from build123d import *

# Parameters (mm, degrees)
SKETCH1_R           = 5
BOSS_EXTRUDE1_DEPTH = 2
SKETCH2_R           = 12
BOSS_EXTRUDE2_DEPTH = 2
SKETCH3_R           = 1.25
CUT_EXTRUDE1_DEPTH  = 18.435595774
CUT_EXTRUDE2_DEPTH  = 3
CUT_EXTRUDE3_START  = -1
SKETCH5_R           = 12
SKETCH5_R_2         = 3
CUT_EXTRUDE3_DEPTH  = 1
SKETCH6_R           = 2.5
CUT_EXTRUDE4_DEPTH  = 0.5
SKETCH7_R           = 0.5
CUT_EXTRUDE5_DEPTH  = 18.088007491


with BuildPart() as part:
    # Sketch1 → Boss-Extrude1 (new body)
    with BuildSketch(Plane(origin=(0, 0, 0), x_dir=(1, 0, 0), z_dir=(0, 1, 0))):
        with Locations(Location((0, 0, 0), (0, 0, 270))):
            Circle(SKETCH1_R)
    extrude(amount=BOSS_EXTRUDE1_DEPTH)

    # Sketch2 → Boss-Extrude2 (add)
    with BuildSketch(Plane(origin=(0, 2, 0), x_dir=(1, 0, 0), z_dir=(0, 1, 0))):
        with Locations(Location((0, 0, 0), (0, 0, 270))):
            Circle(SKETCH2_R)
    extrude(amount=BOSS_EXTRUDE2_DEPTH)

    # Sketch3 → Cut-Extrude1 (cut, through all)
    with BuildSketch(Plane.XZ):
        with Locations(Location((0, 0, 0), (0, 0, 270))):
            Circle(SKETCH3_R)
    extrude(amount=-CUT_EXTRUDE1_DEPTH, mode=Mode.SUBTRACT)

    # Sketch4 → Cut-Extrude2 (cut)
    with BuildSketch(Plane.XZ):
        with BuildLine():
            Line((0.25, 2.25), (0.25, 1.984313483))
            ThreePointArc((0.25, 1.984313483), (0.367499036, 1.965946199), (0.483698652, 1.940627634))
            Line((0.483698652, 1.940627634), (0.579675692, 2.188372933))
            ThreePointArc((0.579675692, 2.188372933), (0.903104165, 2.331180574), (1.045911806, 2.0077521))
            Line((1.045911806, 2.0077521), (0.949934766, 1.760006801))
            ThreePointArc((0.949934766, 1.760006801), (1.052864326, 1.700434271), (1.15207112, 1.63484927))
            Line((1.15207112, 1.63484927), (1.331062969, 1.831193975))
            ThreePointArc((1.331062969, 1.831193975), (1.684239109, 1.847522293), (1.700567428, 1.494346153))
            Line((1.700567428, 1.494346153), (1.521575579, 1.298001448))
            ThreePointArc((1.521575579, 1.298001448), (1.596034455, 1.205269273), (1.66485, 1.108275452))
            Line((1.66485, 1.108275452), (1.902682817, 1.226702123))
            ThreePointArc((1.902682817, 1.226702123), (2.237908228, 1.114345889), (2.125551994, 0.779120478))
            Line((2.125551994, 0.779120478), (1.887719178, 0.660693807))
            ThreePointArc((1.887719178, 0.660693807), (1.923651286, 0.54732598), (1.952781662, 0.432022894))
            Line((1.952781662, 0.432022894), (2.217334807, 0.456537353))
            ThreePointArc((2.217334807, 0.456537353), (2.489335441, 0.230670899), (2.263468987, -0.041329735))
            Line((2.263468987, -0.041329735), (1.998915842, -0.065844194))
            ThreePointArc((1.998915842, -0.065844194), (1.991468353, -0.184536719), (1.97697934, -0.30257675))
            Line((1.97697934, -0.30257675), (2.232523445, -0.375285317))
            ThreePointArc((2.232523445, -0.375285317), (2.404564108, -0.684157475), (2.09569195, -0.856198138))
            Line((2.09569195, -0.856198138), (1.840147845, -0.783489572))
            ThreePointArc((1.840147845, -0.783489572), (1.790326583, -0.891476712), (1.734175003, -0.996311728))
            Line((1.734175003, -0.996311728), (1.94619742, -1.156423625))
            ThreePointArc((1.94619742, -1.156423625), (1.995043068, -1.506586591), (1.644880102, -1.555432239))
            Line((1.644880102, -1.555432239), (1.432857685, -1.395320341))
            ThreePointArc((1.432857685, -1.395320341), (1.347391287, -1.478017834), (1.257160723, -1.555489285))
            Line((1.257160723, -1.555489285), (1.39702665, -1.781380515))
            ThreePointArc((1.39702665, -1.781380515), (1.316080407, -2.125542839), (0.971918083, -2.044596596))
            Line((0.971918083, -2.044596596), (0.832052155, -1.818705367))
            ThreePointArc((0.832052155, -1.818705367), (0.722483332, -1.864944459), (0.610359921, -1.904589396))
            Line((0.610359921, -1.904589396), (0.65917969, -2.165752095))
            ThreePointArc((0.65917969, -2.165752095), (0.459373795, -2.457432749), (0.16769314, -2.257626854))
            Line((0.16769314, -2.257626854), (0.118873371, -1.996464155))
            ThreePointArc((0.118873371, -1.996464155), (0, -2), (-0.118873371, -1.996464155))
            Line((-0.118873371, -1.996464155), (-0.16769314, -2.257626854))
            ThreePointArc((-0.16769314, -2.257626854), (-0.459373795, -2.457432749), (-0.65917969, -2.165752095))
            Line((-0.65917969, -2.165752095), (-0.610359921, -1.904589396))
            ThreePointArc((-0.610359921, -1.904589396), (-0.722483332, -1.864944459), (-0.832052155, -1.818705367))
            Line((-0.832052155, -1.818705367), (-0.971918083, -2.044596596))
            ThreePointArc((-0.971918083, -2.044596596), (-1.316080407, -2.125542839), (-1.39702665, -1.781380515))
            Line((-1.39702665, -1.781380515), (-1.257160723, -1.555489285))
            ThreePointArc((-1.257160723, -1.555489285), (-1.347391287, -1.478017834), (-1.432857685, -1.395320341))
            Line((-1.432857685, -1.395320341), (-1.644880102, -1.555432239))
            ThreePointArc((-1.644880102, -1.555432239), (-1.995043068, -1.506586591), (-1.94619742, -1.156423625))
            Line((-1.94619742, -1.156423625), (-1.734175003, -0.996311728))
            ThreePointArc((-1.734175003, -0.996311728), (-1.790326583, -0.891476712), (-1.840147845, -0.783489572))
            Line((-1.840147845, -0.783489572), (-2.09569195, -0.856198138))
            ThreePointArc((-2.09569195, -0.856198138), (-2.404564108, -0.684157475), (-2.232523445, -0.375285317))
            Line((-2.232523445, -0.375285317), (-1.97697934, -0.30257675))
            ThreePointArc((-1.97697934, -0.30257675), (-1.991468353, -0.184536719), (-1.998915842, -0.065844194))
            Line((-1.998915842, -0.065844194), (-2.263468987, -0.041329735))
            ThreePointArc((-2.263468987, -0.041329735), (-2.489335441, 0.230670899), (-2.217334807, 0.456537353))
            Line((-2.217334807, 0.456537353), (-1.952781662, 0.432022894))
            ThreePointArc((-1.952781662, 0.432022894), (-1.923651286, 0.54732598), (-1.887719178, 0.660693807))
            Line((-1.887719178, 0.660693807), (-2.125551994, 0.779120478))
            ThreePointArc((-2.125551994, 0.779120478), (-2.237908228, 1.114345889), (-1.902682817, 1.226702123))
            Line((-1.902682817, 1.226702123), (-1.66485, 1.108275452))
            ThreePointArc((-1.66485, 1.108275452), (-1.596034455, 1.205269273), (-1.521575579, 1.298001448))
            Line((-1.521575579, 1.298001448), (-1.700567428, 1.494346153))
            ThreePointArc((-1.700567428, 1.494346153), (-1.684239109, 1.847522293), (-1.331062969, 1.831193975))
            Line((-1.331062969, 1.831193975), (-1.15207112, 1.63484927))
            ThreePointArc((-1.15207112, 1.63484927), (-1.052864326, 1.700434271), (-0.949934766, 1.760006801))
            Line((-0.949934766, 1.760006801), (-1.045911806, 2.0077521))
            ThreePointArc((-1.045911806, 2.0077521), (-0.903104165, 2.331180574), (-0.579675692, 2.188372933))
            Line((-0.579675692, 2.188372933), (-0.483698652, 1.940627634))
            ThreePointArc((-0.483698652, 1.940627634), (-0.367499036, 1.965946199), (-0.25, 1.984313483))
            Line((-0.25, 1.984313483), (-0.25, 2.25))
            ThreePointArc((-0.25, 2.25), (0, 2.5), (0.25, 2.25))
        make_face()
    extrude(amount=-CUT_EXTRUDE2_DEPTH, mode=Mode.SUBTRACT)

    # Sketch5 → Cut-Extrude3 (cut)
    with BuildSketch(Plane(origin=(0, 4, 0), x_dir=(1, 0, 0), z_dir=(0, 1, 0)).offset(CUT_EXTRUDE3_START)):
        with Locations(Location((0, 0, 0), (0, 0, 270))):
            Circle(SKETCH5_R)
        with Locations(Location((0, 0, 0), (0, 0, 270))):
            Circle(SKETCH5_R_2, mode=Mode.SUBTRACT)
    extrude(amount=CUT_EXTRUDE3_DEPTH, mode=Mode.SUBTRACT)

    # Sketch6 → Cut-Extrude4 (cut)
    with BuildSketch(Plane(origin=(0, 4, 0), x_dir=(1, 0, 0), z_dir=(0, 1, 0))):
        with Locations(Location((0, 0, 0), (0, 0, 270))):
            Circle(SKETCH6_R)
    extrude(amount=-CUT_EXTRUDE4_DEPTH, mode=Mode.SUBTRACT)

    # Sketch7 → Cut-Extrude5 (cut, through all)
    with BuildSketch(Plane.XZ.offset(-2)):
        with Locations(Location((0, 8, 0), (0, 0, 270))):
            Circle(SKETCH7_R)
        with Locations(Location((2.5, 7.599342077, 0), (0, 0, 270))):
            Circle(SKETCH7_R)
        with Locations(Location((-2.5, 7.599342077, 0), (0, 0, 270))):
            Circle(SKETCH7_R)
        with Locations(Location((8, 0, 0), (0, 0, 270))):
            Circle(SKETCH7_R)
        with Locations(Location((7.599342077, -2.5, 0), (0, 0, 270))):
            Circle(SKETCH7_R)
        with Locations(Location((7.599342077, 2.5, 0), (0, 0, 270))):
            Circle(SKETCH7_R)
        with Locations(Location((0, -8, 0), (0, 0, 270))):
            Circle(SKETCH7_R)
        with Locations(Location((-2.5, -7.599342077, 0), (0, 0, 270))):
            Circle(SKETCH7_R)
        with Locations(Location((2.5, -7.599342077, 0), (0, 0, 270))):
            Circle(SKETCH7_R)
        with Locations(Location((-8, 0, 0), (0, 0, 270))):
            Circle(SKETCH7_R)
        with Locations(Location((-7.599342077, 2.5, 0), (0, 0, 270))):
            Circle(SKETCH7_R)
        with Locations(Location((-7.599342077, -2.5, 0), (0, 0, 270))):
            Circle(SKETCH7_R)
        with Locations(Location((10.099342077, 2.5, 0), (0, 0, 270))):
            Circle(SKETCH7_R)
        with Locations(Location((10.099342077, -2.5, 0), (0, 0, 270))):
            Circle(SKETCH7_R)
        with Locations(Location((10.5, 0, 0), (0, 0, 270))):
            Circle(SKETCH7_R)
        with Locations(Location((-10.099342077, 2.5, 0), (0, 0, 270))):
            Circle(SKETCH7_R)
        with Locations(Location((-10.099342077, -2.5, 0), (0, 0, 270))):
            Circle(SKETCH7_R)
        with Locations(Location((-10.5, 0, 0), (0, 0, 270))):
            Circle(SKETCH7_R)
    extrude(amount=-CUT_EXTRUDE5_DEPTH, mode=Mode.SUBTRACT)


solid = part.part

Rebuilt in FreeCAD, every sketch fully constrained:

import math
import FreeCAD as App
import Part
import Sketcher
Q = App.Units.Quantity

doc = App.newDocument("Part")
body = doc.addObject("PartDesign::Body", "Body")

sketch1 = doc.addObject("Sketcher::SketchObject", "Sketch")
body.addObject(sketch1)
sketch1.AttachmentSupport = (doc.XZ_Plane, [""])
sketch1.MapMode = "FlatFace"
sketch1.addGeometry(Part.Circle(App.Vector(0, 0, 0), App.Vector(0, 0, 1), 5), False)
sketch1.addConstraint(Sketcher.Constraint("Coincident", 0, 3, -1, 1))
sketch1.addConstraint(Sketcher.Constraint("Diameter", 0, Q("10 mm")))
pad1 = doc.addObject("PartDesign::Pad", "Pad")
body.addObject(pad1)
pad1.Profile = sketch1
pad1.Length = 2
pad1.Reversed = True

sketch2 = doc.addObject("Sketcher::SketchObject", "Sketch001")
body.addObject(sketch2)
sketch2.AttachmentSupport = (doc.XZ_Plane, [""])
sketch2.MapMode = "FlatFace"
sketch2.AttachmentOffset = App.Placement(App.Vector(0, 0, -2), App.Rotation())
sketch2.addGeometry(Part.Circle(App.Vector(0, 0, 0), App.Vector(0, 0, 1), 12), False)
sketch2.addConstraint(Sketcher.Constraint("Coincident", 0, 3, -1, 1))
sketch2.addConstraint(Sketcher.Constraint("Diameter", 0, Q("24 mm")))
pad2 = doc.addObject("PartDesign::Pad", "Pad001")
body.addObject(pad2)
pad2.Profile = sketch2
pad2.Length = 2
pad2.Reversed = True

sketch3 = doc.addObject("Sketcher::SketchObject", "Sketch002")
body.addObject(sketch3)
sketch3.AttachmentSupport = (doc.XZ_Plane, [""])
sketch3.MapMode = "FlatFace"
sketch3.addGeometry(Part.Circle(App.Vector(0, 0, 0), App.Vector(0, 0, 1), 1.2), False)
sketch3.addConstraint(Sketcher.Constraint("Coincident", 0, 3, -1, 1))
sketch3.addConstraint(Sketcher.Constraint("Diameter", 0, Q("2.5 mm")))
pocket1 = doc.addObject("PartDesign::Pocket", "Pocket")
body.addObject(pocket1)
pocket1.Profile = sketch3
pocket1.Type = "ThroughAll"

sketch4 = doc.addObject("Sketcher::SketchObject", "Sketch003")
body.addObject(sketch4)
sketch4.AttachmentSupport = (doc.XZ_Plane, [""])
sketch4.MapMode = "FlatFace"
sketch4.addGeometry(Part.LineSegment(App.Vector(0.25, 1.98, 0), App.Vector(0.25, 2.25, 0)), False)
sketch4.addGeometry(Part.ArcOfCircle(Part.Circle(App.Vector(0, 2.25, 0), App.Vector(0, 0, 1), 0.25), math.radians(0), math.radians(180)), False)
sketch4.addGeometry(Part.LineSegment(App.Vector(-0.25, 2.25, 0), App.Vector(-0.25, 1.98, 0)), False)
sketch4.addGeometry(Part.ArcOfCircle(Part.Circle(App.Vector(0, 0, 0), App.Vector(0, 0, 1), 2), math.radians(97.18), math.radians(104)), False)
sketch4.addGeometry(Part.LineSegment(App.Vector(-0.48, 1.94, 0), App.Vector(-0.58, 2.19, 0)), False)
sketch4.addGeometry(Part.ArcOfCircle(Part.Circle(App.Vector(-0.81, 2.1, 0), App.Vector(0, 0, 1), 0.25), math.radians(21), math.radians(201)), False)
sketch4.addGeometry(Part.LineSegment(App.Vector(-1.05, 2.01, 0), App.Vector(-0.95, 1.76, 0)), False)
sketch4.addGeometry(Part.ArcOfCircle(Part.Circle(App.Vector(0, 0, 0), App.Vector(0, 0, 1), 2), math.radians(118.36), math.radians(125.17)), False)
sketch4.addGeometry(Part.LineSegment(App.Vector(-1.15, 1.63, 0), App.Vector(-1.33, 1.83, 0)), False)
sketch4.addGeometry(Part.ArcOfCircle(Part.Circle(App.Vector(-1.52, 1.66, 0), App.Vector(0, 0, 1), 0.25), math.radians(42), math.radians(222)), False)
sketch4.addGeometry(Part.LineSegment(App.Vector(-1.7, 1.49, 0), App.Vector(-1.52, 1.3, 0)), False)
sketch4.addGeometry(Part.ArcOfCircle(Part.Circle(App.Vector(0, 0, 0), App.Vector(0, 0, 1), 2), math.radians(139.53), math.radians(146.35)), False)
sketch4.addGeometry(Part.LineSegment(App.Vector(-1.66, 1.11, 0), App.Vector(-1.9, 1.23, 0)), False)
sketch4.addGeometry(Part.ArcOfCircle(Part.Circle(App.Vector(-2.01, 1, 0), App.Vector(0, 0, 1), 0.25), math.radians(64), math.radians(244)), False)
sketch4.addGeometry(Part.LineSegment(App.Vector(-2.13, 0.78, 0), App.Vector(-1.89, 0.66, 0)), False)
sketch4.addGeometry(Part.ArcOfCircle(Part.Circle(App.Vector(0, 0, 0), App.Vector(0, 0, 1), 2), math.radians(160.71), math.radians(167.53)), False)
sketch4.addGeometry(Part.LineSegment(App.Vector(-1.95, 0.43, 0), App.Vector(-2.22, 0.46, 0)), False)
sketch4.addGeometry(Part.ArcOfCircle(Part.Circle(App.Vector(-2.24, 0.21, 0), App.Vector(0, 0, 1), 0.25), math.radians(85), math.radians(265)), False)
sketch4.addGeometry(Part.LineSegment(App.Vector(-2.26, -0.04, 0), App.Vector(-2, -0.07, 0)), False)
sketch4.addGeometry(Part.ArcOfCircle(Part.Circle(App.Vector(0, 0, 0), App.Vector(0, 0, 1), 2), math.radians(-178.11), math.radians(-171.3)), False)
sketch4.addGeometry(Part.LineSegment(App.Vector(-1.98, -0.3, 0), App.Vector(-2.23, -0.38, 0)), False)
sketch4.addGeometry(Part.ArcOfCircle(Part.Circle(App.Vector(-2.16, -0.62, 0), App.Vector(0, 0, 1), 0.25), math.radians(106), math.radians(286)), False)
sketch4.addGeometry(Part.LineSegment(App.Vector(-2.1, -0.86, 0), App.Vector(-1.84, -0.78, 0)), False)
sketch4.addGeometry(Part.ArcOfCircle(Part.Circle(App.Vector(0, 0, 0), App.Vector(0, 0, 1), 2), math.radians(-156.94), math.radians(-150.12)), False)
sketch4.addGeometry(Part.LineSegment(App.Vector(-1.73, -1, 0), App.Vector(-1.95, -1.16, 0)), False)
sketch4.addGeometry(Part.ArcOfCircle(Part.Circle(App.Vector(-1.8, -1.36, 0), App.Vector(0, 0, 1), 0.25), math.radians(127), math.radians(307)), False)
sketch4.addGeometry(Part.LineSegment(App.Vector(-1.64, -1.56, 0), App.Vector(-1.43, -1.4, 0)), False)
sketch4.addGeometry(Part.ArcOfCircle(Part.Circle(App.Vector(0, 0, 0), App.Vector(0, 0, 1), 2), math.radians(-135.76), math.radians(-128.95)), False)
sketch4.addGeometry(Part.LineSegment(App.Vector(-1.26, -1.56, 0), App.Vector(-1.4, -1.78, 0)), False)
sketch4.addGeometry(Part.ArcOfCircle(Part.Circle(App.Vector(-1.18, -1.91, 0), App.Vector(0, 0, 1), 0.25), math.radians(148), math.radians(328)), False)
sketch4.addGeometry(Part.LineSegment(App.Vector(-0.97, -2.04, 0), App.Vector(-0.83, -1.82, 0)), False)
sketch4.addGeometry(Part.ArcOfCircle(Part.Circle(App.Vector(0, 0, 0), App.Vector(0, 0, 1), 2), math.radians(-114.58), math.radians(-107.77)), False)
sketch4.addGeometry(Part.LineSegment(App.Vector(-0.61, -1.9, 0), App.Vector(-0.66, -2.17, 0)), False)
sketch4.addGeometry(Part.ArcOfCircle(Part.Circle(App.Vector(-0.41, -2.21, 0), App.Vector(0, 0, 1), 0.25), math.radians(169), math.radians(349)), False)
sketch4.addGeometry(Part.LineSegment(App.Vector(-0.17, -2.26, 0), App.Vector(-0.12, -2, 0)), False)
sketch4.addGeometry(Part.ArcOfCircle(Part.Circle(App.Vector(0, 0, 0), App.Vector(0, 0, 1), 2), math.radians(-93.41), math.radians(-86.59)), False)
sketch4.addGeometry(Part.LineSegment(App.Vector(0.12, -2, 0), App.Vector(0.17, -2.26, 0)), False)
sketch4.addGeometry(Part.ArcOfCircle(Part.Circle(App.Vector(0.41, -2.21, 0), App.Vector(0, 0, 1), 0.25), math.radians(-169), math.radians(11)), False)
sketch4.addGeometry(Part.LineSegment(App.Vector(0.66, -2.17, 0), App.Vector(0.61, -1.9, 0)), False)
sketch4.addGeometry(Part.ArcOfCircle(Part.Circle(App.Vector(0, 0, 0), App.Vector(0, 0, 1), 2), math.radians(-72.23), math.radians(-65.42)), False)
sketch4.addGeometry(Part.LineSegment(App.Vector(0.83, -1.82, 0), App.Vector(0.97, -2.04, 0)), False)
sketch4.addGeometry(Part.ArcOfCircle(Part.Circle(App.Vector(1.18, -1.91, 0), App.Vector(0, 0, 1), 0.25), math.radians(-148), math.radians(32)), False)
sketch4.addGeometry(Part.LineSegment(App.Vector(1.4, -1.78, 0), App.Vector(1.26, -1.56, 0)), False)
sketch4.addGeometry(Part.ArcOfCircle(Part.Circle(App.Vector(0, 0, 0), App.Vector(0, 0, 1), 2), math.radians(-51.05), math.radians(-44.24)), False)
sketch4.addGeometry(Part.LineSegment(App.Vector(1.43, -1.4, 0), App.Vector(1.64, -1.56, 0)), False)
sketch4.addGeometry(Part.ArcOfCircle(Part.Circle(App.Vector(1.8, -1.36, 0), App.Vector(0, 0, 1), 0.25), math.radians(-127), math.radians(53)), False)
sketch4.addGeometry(Part.LineSegment(App.Vector(1.95, -1.16, 0), App.Vector(1.73, -1, 0)), False)
sketch4.addGeometry(Part.ArcOfCircle(Part.Circle(App.Vector(0, 0, 0), App.Vector(0, 0, 1), 2), math.radians(-29.88), math.radians(-23.06)), False)
sketch4.addGeometry(Part.LineSegment(App.Vector(1.84, -0.78, 0), App.Vector(2.1, -0.86, 0)), False)
sketch4.addGeometry(Part.ArcOfCircle(Part.Circle(App.Vector(2.16, -0.62, 0), App.Vector(0, 0, 1), 0.25), math.radians(-106), math.radians(74)), False)
sketch4.addGeometry(Part.LineSegment(App.Vector(2.23, -0.38, 0), App.Vector(1.98, -0.3, 0)), False)
sketch4.addGeometry(Part.ArcOfCircle(Part.Circle(App.Vector(0, 0, 0), App.Vector(0, 0, 1), 2), math.radians(-8.7), math.radians(-1.89)), False)
sketch4.addGeometry(Part.LineSegment(App.Vector(2, -0.07, 0), App.Vector(2.26, -0.04, 0)), False)
sketch4.addGeometry(Part.ArcOfCircle(Part.Circle(App.Vector(2.24, 0.21, 0), App.Vector(0, 0, 1), 0.25), math.radians(-85), math.radians(95)), False)
sketch4.addGeometry(Part.LineSegment(App.Vector(2.22, 0.46, 0), App.Vector(1.95, 0.43, 0)), False)
sketch4.addGeometry(Part.ArcOfCircle(Part.Circle(App.Vector(0, 0, 0), App.Vector(0, 0, 1), 2), math.radians(12.47), math.radians(19.29)), False)
sketch4.addGeometry(Part.LineSegment(App.Vector(1.89, 0.66, 0), App.Vector(2.13, 0.78, 0)), False)
sketch4.addGeometry(Part.ArcOfCircle(Part.Circle(App.Vector(2.01, 1, 0), App.Vector(0, 0, 1), 0.25), math.radians(-64), math.radians(116)), False)
sketch4.addGeometry(Part.LineSegment(App.Vector(1.9, 1.23, 0), App.Vector(1.66, 1.11, 0)), False)
sketch4.addGeometry(Part.ArcOfCircle(Part.Circle(App.Vector(0, 0, 0), App.Vector(0, 0, 1), 2), math.radians(33.65), math.radians(40.47)), False)
sketch4.addGeometry(Part.LineSegment(App.Vector(1.52, 1.3, 0), App.Vector(1.7, 1.49, 0)), False)
sketch4.addGeometry(Part.ArcOfCircle(Part.Circle(App.Vector(1.52, 1.66, 0), App.Vector(0, 0, 1), 0.25), math.radians(-42), math.radians(138)), False)
sketch4.addGeometry(Part.LineSegment(App.Vector(1.33, 1.83, 0), App.Vector(1.15, 1.63, 0)), False)
sketch4.addGeometry(Part.ArcOfCircle(Part.Circle(App.Vector(0, 0, 0), App.Vector(0, 0, 1), 2), math.radians(54.83), math.radians(61.64)), False)
sketch4.addGeometry(Part.LineSegment(App.Vector(0.95, 1.76, 0), App.Vector(1.05, 2.01, 0)), False)
sketch4.addGeometry(Part.ArcOfCircle(Part.Circle(App.Vector(0.81, 2.1, 0), App.Vector(0, 0, 1), 0.25), math.radians(-21), math.radians(159)), False)
sketch4.addGeometry(Part.LineSegment(App.Vector(0.58, 2.19, 0), App.Vector(0.48, 1.94, 0)), False)
sketch4.addGeometry(Part.ArcOfCircle(Part.Circle(App.Vector(0, 0, 0), App.Vector(0, 0, 1), 2), math.radians(76), math.radians(82.82)), False)
sketch4.addConstraint(Sketcher.Constraint("Tangent", 0, 2, 1, 1))
sketch4.addConstraint(Sketcher.Constraint("Tangent", 1, 2, 2, 1))
sketch4.addConstraint(Sketcher.Constraint("Coincident", 2, 2, 3, 1))
sketch4.addConstraint(Sketcher.Constraint("Coincident", 3, 2, 4, 1))
sketch4.addConstraint(Sketcher.Constraint("Tangent", 4, 2, 5, 1))
sketch4.addConstraint(Sketcher.Constraint("Tangent", 5, 2, 6, 1))
sketch4.addConstraint(Sketcher.Constraint("Coincident", 6, 2, 7, 1))
sketch4.addConstraint(Sketcher.Constraint("Coincident", 7, 2, 8, 1))
sketch4.addConstraint(Sketcher.Constraint("Tangent", 8, 2, 9, 1))
sketch4.addConstraint(Sketcher.Constraint("Tangent", 9, 2, 10, 1))
sketch4.addConstraint(Sketcher.Constraint("Coincident", 10, 2, 11, 1))
sketch4.addConstraint(Sketcher.Constraint("Coincident", 11, 2, 12, 1))
sketch4.addConstraint(Sketcher.Constraint("Tangent", 12, 2, 13, 1))
sketch4.addConstraint(Sketcher.Constraint("Tangent", 13, 2, 14, 1))
sketch4.addConstraint(Sketcher.Constraint("Coincident", 14, 2, 15, 1))
sketch4.addConstraint(Sketcher.Constraint("Coincident", 15, 2, 16, 1))
sketch4.addConstraint(Sketcher.Constraint("Tangent", 16, 2, 17, 1))
sketch4.addConstraint(Sketcher.Constraint("Tangent", 17, 2, 18, 1))
sketch4.addConstraint(Sketcher.Constraint("Coincident", 18, 2, 19, 1))
sketch4.addConstraint(Sketcher.Constraint("Coincident", 19, 2, 20, 1))
sketch4.addConstraint(Sketcher.Constraint("Tangent", 20, 2, 21, 1))
sketch4.addConstraint(Sketcher.Constraint("Tangent", 21, 2, 22, 1))
sketch4.addConstraint(Sketcher.Constraint("Coincident", 22, 2, 23, 1))
sketch4.addConstraint(Sketcher.Constraint("Coincident", 23, 2, 24, 1))
sketch4.addConstraint(Sketcher.Constraint("Tangent", 24, 2, 25, 1))
sketch4.addConstraint(Sketcher.Constraint("Tangent", 25, 2, 26, 1))
sketch4.addConstraint(Sketcher.Constraint("Coincident", 26, 2, 27, 1))
sketch4.addConstraint(Sketcher.Constraint("Coincident", 27, 2, 28, 1))
sketch4.addConstraint(Sketcher.Constraint("Tangent", 28, 2, 29, 1))
sketch4.addConstraint(Sketcher.Constraint("Tangent", 29, 2, 30, 1))
sketch4.addConstraint(Sketcher.Constraint("Coincident", 30, 2, 31, 1))
sketch4.addConstraint(Sketcher.Constraint("Coincident", 31, 2, 32, 1))
sketch4.addConstraint(Sketcher.Constraint("Tangent", 32, 2, 33, 1))
sketch4.addConstraint(Sketcher.Constraint("Tangent", 33, 2, 34, 1))
sketch4.addConstraint(Sketcher.Constraint("Coincident", 34, 2, 35, 1))
sketch4.addConstraint(Sketcher.Constraint("Coincident", 35, 2, 36, 1))
sketch4.addConstraint(Sketcher.Constraint("Tangent", 36, 2, 37, 1))
sketch4.addConstraint(Sketcher.Constraint("Tangent", 37, 2, 38, 1))
sketch4.addConstraint(Sketcher.Constraint("Coincident", 38, 2, 39, 1))
sketch4.addConstraint(Sketcher.Constraint("Coincident", 39, 2, 40, 1))
sketch4.addConstraint(Sketcher.Constraint("Tangent", 40, 2, 41, 1))
sketch4.addConstraint(Sketcher.Constraint("Tangent", 41, 2, 42, 1))
sketch4.addConstraint(Sketcher.Constraint("Coincident", 42, 2, 43, 1))
sketch4.addConstraint(Sketcher.Constraint("Coincident", 43, 2, 44, 1))
sketch4.addConstraint(Sketcher.Constraint("Tangent", 44, 2, 45, 1))
sketch4.addConstraint(Sketcher.Constraint("Tangent", 45, 2, 46, 1))
sketch4.addConstraint(Sketcher.Constraint("Coincident", 46, 2, 47, 1))
sketch4.addConstraint(Sketcher.Constraint("Coincident", 47, 2, 48, 1))
sketch4.addConstraint(Sketcher.Constraint("Tangent", 48, 2, 49, 1))
sketch4.addConstraint(Sketcher.Constraint("Tangent", 49, 2, 50, 1))
sketch4.addConstraint(Sketcher.Constraint("Coincident", 50, 2, 51, 1))
sketch4.addConstraint(Sketcher.Constraint("Coincident", 51, 2, 52, 1))
sketch4.addConstraint(Sketcher.Constraint("Tangent", 52, 2, 53, 1))
sketch4.addConstraint(Sketcher.Constraint("Tangent", 53, 2, 54, 1))
sketch4.addConstraint(Sketcher.Constraint("Coincident", 54, 2, 55, 1))
sketch4.addConstraint(Sketcher.Constraint("Coincident", 55, 2, 56, 1))
sketch4.addConstraint(Sketcher.Constraint("Tangent", 56, 2, 57, 1))
sketch4.addConstraint(Sketcher.Constraint("Tangent", 57, 2, 58, 1))
sketch4.addConstraint(Sketcher.Constraint("Coincident", 58, 2, 59, 1))
sketch4.addConstraint(Sketcher.Constraint("Coincident", 59, 2, 60, 1))
sketch4.addConstraint(Sketcher.Constraint("Tangent", 60, 2, 61, 1))
sketch4.addConstraint(Sketcher.Constraint("Tangent", 61, 2, 62, 1))
sketch4.addConstraint(Sketcher.Constraint("Coincident", 62, 2, 63, 1))
sketch4.addConstraint(Sketcher.Constraint("Coincident", 63, 2, 64, 1))
sketch4.addConstraint(Sketcher.Constraint("Tangent", 64, 2, 65, 1))
sketch4.addConstraint(Sketcher.Constraint("Tangent", 65, 2, 66, 1))
sketch4.addConstraint(Sketcher.Constraint("Coincident", 66, 2, 67, 1))
sketch4.addConstraint(Sketcher.Constraint("Coincident", 67, 2, 0, 1))
sketch4.addConstraint(Sketcher.Constraint("Vertical", 0))
sketch4.addConstraint(Sketcher.Constraint("Vertical", 2))
sketch4.addConstraint(Sketcher.Constraint("Coincident", 3, 3, -1, 1))
sketch4.addConstraint(Sketcher.Constraint("Coincident", 7, 3, -1, 1))
sketch4.addConstraint(Sketcher.Constraint("Coincident", 11, 3, -1, 1))
sketch4.addConstraint(Sketcher.Constraint("Coincident", 15, 3, -1, 1))
sketch4.addConstraint(Sketcher.Constraint("Coincident", 19, 3, -1, 1))
sketch4.addConstraint(Sketcher.Constraint("Coincident", 23, 3, -1, 1))
sketch4.addConstraint(Sketcher.Constraint("Coincident", 27, 3, -1, 1))
sketch4.addConstraint(Sketcher.Constraint("Coincident", 31, 3, -1, 1))
sketch4.addConstraint(Sketcher.Constraint("Coincident", 35, 3, -1, 1))
sketch4.addConstraint(Sketcher.Constraint("Coincident", 39, 3, -1, 1))
sketch4.addConstraint(Sketcher.Constraint("Coincident", 43, 3, -1, 1))
sketch4.addConstraint(Sketcher.Constraint("Coincident", 47, 3, -1, 1))
sketch4.addConstraint(Sketcher.Constraint("Coincident", 51, 3, -1, 1))
sketch4.addConstraint(Sketcher.Constraint("Coincident", 55, 3, -1, 1))
sketch4.addConstraint(Sketcher.Constraint("Coincident", 59, 3, -1, 1))
sketch4.addConstraint(Sketcher.Constraint("Coincident", 63, 3, -1, 1))
sketch4.addConstraint(Sketcher.Constraint("Coincident", 67, 3, -1, 1))
sketch4.addConstraint(Sketcher.Constraint("Equal", 1, 5))
sketch4.addConstraint(Sketcher.Constraint("Equal", 3, 7))
sketch4.addConstraint(Sketcher.Constraint("Equal", 5, 9))
sketch4.addConstraint(Sketcher.Constraint("Equal", 7, 11))
sketch4.addConstraint(Sketcher.Constraint("Equal", 9, 13))
sketch4.addConstraint(Sketcher.Constraint("Equal", 11, 15))
sketch4.addConstraint(Sketcher.Constraint("Equal", 13, 17))
sketch4.addConstraint(Sketcher.Constraint("Equal", 15, 19))
sketch4.addConstraint(Sketcher.Constraint("Equal", 17, 21))
sketch4.addConstraint(Sketcher.Constraint("Equal", 19, 23))
sketch4.addConstraint(Sketcher.Constraint("Equal", 21, 25))
sketch4.addConstraint(Sketcher.Constraint("Equal", 23, 27))
sketch4.addConstraint(Sketcher.Constraint("Equal", 25, 29))
sketch4.addConstraint(Sketcher.Constraint("Equal", 27, 31))
sketch4.addConstraint(Sketcher.Constraint("Equal", 29, 33))
sketch4.addConstraint(Sketcher.Constraint("Equal", 31, 35))
sketch4.addConstraint(Sketcher.Constraint("Equal", 33, 37))
sketch4.addConstraint(Sketcher.Constraint("Equal", 35, 39))
sketch4.addConstraint(Sketcher.Constraint("Equal", 37, 41))
sketch4.addConstraint(Sketcher.Constraint("Equal", 39, 43))
sketch4.addConstraint(Sketcher.Constraint("Equal", 41, 45))
sketch4.addConstraint(Sketcher.Constraint("Equal", 43, 47))
sketch4.addConstraint(Sketcher.Constraint("Equal", 45, 49))
sketch4.addConstraint(Sketcher.Constraint("Equal", 47, 51))
sketch4.addConstraint(Sketcher.Constraint("Equal", 49, 53))
sketch4.addConstraint(Sketcher.Constraint("Equal", 51, 55))
sketch4.addConstraint(Sketcher.Constraint("Equal", 53, 57))
sketch4.addConstraint(Sketcher.Constraint("Equal", 55, 59))
sketch4.addConstraint(Sketcher.Constraint("Equal", 57, 61))
sketch4.addConstraint(Sketcher.Constraint("Equal", 59, 63))
sketch4.addConstraint(Sketcher.Constraint("Equal", 61, 65))
sketch4.addConstraint(Sketcher.Constraint("Equal", 63, 67))
sketch4.addConstraint(Sketcher.Constraint("Symmetric", 33, 3, 37, 3, -2))
sketch4.addConstraint(Sketcher.Constraint("Symmetric", 29, 3, 41, 3, -2))
sketch4.addConstraint(Sketcher.Constraint("Symmetric", 25, 3, 45, 3, -2))
sketch4.addConstraint(Sketcher.Constraint("Symmetric", 21, 3, 49, 3, -2))
sketch4.addConstraint(Sketcher.Constraint("Symmetric", 17, 3, 53, 3, -2))
sketch4.addConstraint(Sketcher.Constraint("Symmetric", 13, 3, 57, 3, -2))
sketch4.addConstraint(Sketcher.Constraint("Symmetric", 9, 3, 61, 3, -2))
sketch4.addConstraint(Sketcher.Constraint("Symmetric", 5, 3, 65, 3, -2))
sketch4.addConstraint(Sketcher.Constraint("PointOnObject", 1, 3, -2))
sketch4.addConstraint(Sketcher.Constraint("Parallel", 4, 6))
sketch4.addConstraint(Sketcher.Constraint("Parallel", 8, 10))
sketch4.addConstraint(Sketcher.Constraint("Parallel", 12, 14))
sketch4.addConstraint(Sketcher.Constraint("Parallel", 16, 18))
sketch4.addConstraint(Sketcher.Constraint("Parallel", 20, 22))
sketch4.addConstraint(Sketcher.Constraint("Parallel", 24, 26))
sketch4.addConstraint(Sketcher.Constraint("Parallel", 28, 30))
sketch4.addConstraint(Sketcher.Constraint("Parallel", 32, 34))
sketch4.addConstraint(Sketcher.Constraint("Parallel", 36, 38))
sketch4.addConstraint(Sketcher.Constraint("Parallel", 40, 42))
sketch4.addConstraint(Sketcher.Constraint("Parallel", 44, 46))
sketch4.addConstraint(Sketcher.Constraint("Parallel", 48, 50))
sketch4.addConstraint(Sketcher.Constraint("Parallel", 52, 54))
sketch4.addConstraint(Sketcher.Constraint("Parallel", 56, 58))
sketch4.addConstraint(Sketcher.Constraint("Parallel", 60, 62))
sketch4.addConstraint(Sketcher.Constraint("Parallel", 64, 66))
sketch4.addConstraint(Sketcher.Constraint("Horizontal", 34, 2, 35, 2))
sketch4.addConstraint(Sketcher.Constraint("Horizontal", 30, 2, 39, 2))
sketch4.addConstraint(Sketcher.Constraint("Horizontal", 26, 2, 43, 2))
sketch4.addConstraint(Sketcher.Constraint("Horizontal", 22, 2, 47, 2))
sketch4.addConstraint(Sketcher.Constraint("Horizontal", 18, 2, 51, 2))
sketch4.addConstraint(Sketcher.Constraint("Horizontal", 14, 2, 55, 2))
sketch4.addConstraint(Sketcher.Constraint("Horizontal", 10, 2, 59, 2))
sketch4.addConstraint(Sketcher.Constraint("Horizontal", 6, 2, 63, 2))
sketch4.addConstraint(Sketcher.Constraint("Equal", 4, 6))
sketch4.addConstraint(Sketcher.Constraint("Equal", 6, 8))
sketch4.addConstraint(Sketcher.Constraint("Equal", 8, 10))
sketch4.addConstraint(Sketcher.Constraint("Equal", 10, 12))
sketch4.addConstraint(Sketcher.Constraint("Equal", 12, 14))
sketch4.addConstraint(Sketcher.Constraint("Equal", 14, 16))
sketch4.addConstraint(Sketcher.Constraint("Equal", 16, 18))
sketch4.addConstraint(Sketcher.Constraint("Equal", 18, 20))
sketch4.addConstraint(Sketcher.Constraint("Equal", 20, 22))
sketch4.addConstraint(Sketcher.Constraint("Equal", 22, 24))
sketch4.addConstraint(Sketcher.Constraint("Equal", 24, 26))
sketch4.addConstraint(Sketcher.Constraint("Equal", 26, 28))
sketch4.addConstraint(Sketcher.Constraint("Equal", 28, 30))
sketch4.addConstraint(Sketcher.Constraint("Equal", 30, 32))
sketch4.addConstraint(Sketcher.Constraint("Equal", 32, 34))
sketch4.addConstraint(Sketcher.Constraint("Radius", 3, Q("2 mm")))
sketch4.addConstraint(Sketcher.Constraint("Radius", 1, Q("0.25 mm")))
sketch4.addConstraint(Sketcher.Constraint("DistanceY", -1, 1, 1, 3, Q("2.25 mm")))
sketch4.addConstraint(Sketcher.Constraint("DistanceY", -1, 1, 10, 2, Q("1.298001 mm")))
sketch4.addConstraint(Sketcher.Constraint("DistanceX", 17, 3, -1, 1, Q("2.240402 mm")))
sketch4.addConstraint(Sketcher.Constraint("DistanceX", 3, 2, -1, 1, Q("0.483699 mm")))
sketch4.addConstraint(Sketcher.Constraint("DistanceY", 21, 2, -1, 1, Q("0.856198 mm")))
sketch4.addConstraint(Sketcher.Constraint("DistanceY", -1, 1, 9, 3, Q("1.66277 mm")))
sketch4.addConstraint(Sketcher.Constraint("DistanceY", -1, 1, 13, 3, Q("1.002911 mm")))
sketch4.addConstraint(Sketcher.Constraint("DistanceX", 25, 3, -1, 1, Q("1.795539 mm")))
sketch4.addConstraint(Sketcher.Constraint("DistanceY", 29, 3, -1, 1, Q("1.912989 mm")))
sketch4.addConstraint(Sketcher.Constraint("DistanceY", 33, 3, -1, 1, Q("2.211689 mm")))
pocket2 = doc.addObject("PartDesign::Pocket", "Pocket001")
body.addObject(pocket2)
pocket2.Profile = sketch4
pocket2.Length = 3

sketch5 = doc.addObject("Sketcher::SketchObject", "Sketch004")
body.addObject(sketch5)
sketch5.AttachmentSupport = (doc.XZ_Plane, [""])
sketch5.MapMode = "FlatFace"
sketch5.AttachmentOffset = App.Placement(App.Vector(0, 0, -3), App.Rotation())
sketch5.addGeometry(Part.Circle(App.Vector(0, 0, 0), App.Vector(0, 0, 1), 12), False)
sketch5.addGeometry(Part.Circle(App.Vector(0, 0, 0), App.Vector(0, 0, 1), 3), False)
sketch5.addConstraint(Sketcher.Constraint("Coincident", 0, 3, -1, 1))
sketch5.addConstraint(Sketcher.Constraint("Coincident", 1, 3, -1, 1))
sketch5.addConstraint(Sketcher.Constraint("Diameter", 0, Q("24 mm")))
sketch5.addConstraint(Sketcher.Constraint("Diameter", 1, Q("6 mm")))
pocket3 = doc.addObject("PartDesign::Pocket", "Pocket002")
body.addObject(pocket3)
pocket3.Profile = sketch5
pocket3.Length = 1

sketch6 = doc.addObject("Sketcher::SketchObject", "Sketch005")
body.addObject(sketch6)
sketch6.AttachmentSupport = (doc.XZ_Plane, [""])
sketch6.MapMode = "FlatFace"
sketch6.AttachmentOffset = App.Placement(App.Vector(0, 0, -4), App.Rotation())
sketch6.addGeometry(Part.Circle(App.Vector(0, 0, 0), App.Vector(0, 0, 1), 2.5), False)
sketch6.addConstraint(Sketcher.Constraint("Coincident", 0, 3, -1, 1))
sketch6.addConstraint(Sketcher.Constraint("Diameter", 0, Q("5 mm")))
pocket4 = doc.addObject("PartDesign::Pocket", "Pocket003")
body.addObject(pocket4)
pocket4.Profile = sketch6
pocket4.Length = 0.5
pocket4.Reversed = True

sketch7 = doc.addObject("Sketcher::SketchObject", "Sketch006")
body.addObject(sketch7)
sketch7.AttachmentSupport = (doc.XZ_Plane, [""])
sketch7.MapMode = "FlatFace"
sketch7.AttachmentOffset = App.Placement(App.Vector(0, 0, -2), App.Rotation())
sketch7.addGeometry(Part.Circle(App.Vector(0, 8, 0), App.Vector(0, 0, 1), 0.5), False)
sketch7.addGeometry(Part.Circle(App.Vector(2.5, 7.6, 0), App.Vector(0, 0, 1), 0.5), False)
sketch7.addGeometry(Part.Circle(App.Vector(-2.5, 7.6, 0), App.Vector(0, 0, 1), 0.5), False)
sketch7.addGeometry(Part.Circle(App.Vector(8, 0, 0), App.Vector(0, 0, 1), 0.5), False)
sketch7.addGeometry(Part.Circle(App.Vector(7.6, -2.5, 0), App.Vector(0, 0, 1), 0.5), False)
sketch7.addGeometry(Part.Circle(App.Vector(7.6, 2.5, 0), App.Vector(0, 0, 1), 0.5), False)
sketch7.addGeometry(Part.Circle(App.Vector(0, -8, 0), App.Vector(0, 0, 1), 0.5), False)
sketch7.addGeometry(Part.Circle(App.Vector(-2.5, -7.6, 0), App.Vector(0, 0, 1), 0.5), False)
sketch7.addGeometry(Part.Circle(App.Vector(2.5, -7.6, 0), App.Vector(0, 0, 1), 0.5), False)
sketch7.addGeometry(Part.Circle(App.Vector(-8, 0, 0), App.Vector(0, 0, 1), 0.5), False)
sketch7.addGeometry(Part.Circle(App.Vector(-7.6, 2.5, 0), App.Vector(0, 0, 1), 0.5), False)
sketch7.addGeometry(Part.Circle(App.Vector(-7.6, -2.5, 0), App.Vector(0, 0, 1), 0.5), False)
sketch7.addGeometry(Part.Circle(App.Vector(10.1, 2.5, 0), App.Vector(0, 0, 1), 0.5), False)
sketch7.addGeometry(Part.Circle(App.Vector(10.1, -2.5, 0), App.Vector(0, 0, 1), 0.5), False)
sketch7.addGeometry(Part.Circle(App.Vector(10.5, 0, 0), App.Vector(0, 0, 1), 0.5), False)
sketch7.addGeometry(Part.Circle(App.Vector(-10.1, 2.5, 0), App.Vector(0, 0, 1), 0.5), False)
sketch7.addGeometry(Part.Circle(App.Vector(-10.1, -2.5, 0), App.Vector(0, 0, 1), 0.5), False)
sketch7.addGeometry(Part.Circle(App.Vector(-10.5, 0, 0), App.Vector(0, 0, 1), 0.5), False)
sketch7.addConstraint(Sketcher.Constraint("Equal", 0, 1))
sketch7.addConstraint(Sketcher.Constraint("Equal", 1, 2))
sketch7.addConstraint(Sketcher.Constraint("Equal", 2, 3))
sketch7.addConstraint(Sketcher.Constraint("Equal", 3, 4))
sketch7.addConstraint(Sketcher.Constraint("Equal", 4, 5))
sketch7.addConstraint(Sketcher.Constraint("Equal", 5, 6))
sketch7.addConstraint(Sketcher.Constraint("Equal", 6, 7))
sketch7.addConstraint(Sketcher.Constraint("Equal", 7, 8))
sketch7.addConstraint(Sketcher.Constraint("Equal", 8, 9))
sketch7.addConstraint(Sketcher.Constraint("Equal", 9, 10))
sketch7.addConstraint(Sketcher.Constraint("Equal", 10, 11))
sketch7.addConstraint(Sketcher.Constraint("Equal", 11, 12))
sketch7.addConstraint(Sketcher.Constraint("Equal", 12, 13))
sketch7.addConstraint(Sketcher.Constraint("Equal", 13, 14))
sketch7.addConstraint(Sketcher.Constraint("Equal", 14, 15))
sketch7.addConstraint(Sketcher.Constraint("Equal", 15, 16))
sketch7.addConstraint(Sketcher.Constraint("Equal", 16, 17))
sketch7.addConstraint(Sketcher.Constraint("Symmetric", 0, 3, 6, 3, -1, 1))
sketch7.addConstraint(Sketcher.Constraint("Symmetric", 1, 3, 7, 3, -1, 1))
sketch7.addConstraint(Sketcher.Constraint("Symmetric", 2, 3, 8, 3, -1, 1))
sketch7.addConstraint(Sketcher.Constraint("Symmetric", 3, 3, 9, 3, -1, 1))
sketch7.addConstraint(Sketcher.Constraint("Symmetric", 4, 3, 10, 3, -1, 1))
sketch7.addConstraint(Sketcher.Constraint("Symmetric", 5, 3, 11, 3, -1, 1))
sketch7.addConstraint(Sketcher.Constraint("Symmetric", 13, 3, 15, 3, -1, 1))
sketch7.addConstraint(Sketcher.Constraint("Symmetric", 12, 3, 16, 3, -1, 1))
sketch7.addConstraint(Sketcher.Constraint("Symmetric", 14, 3, 17, 3, -1, 1))
sketch7.addConstraint(Sketcher.Constraint("Symmetric", 1, 3, 2, 3, -2))
sketch7.addConstraint(Sketcher.Constraint("Symmetric", 5, 3, 10, 3, -2))
sketch7.addConstraint(Sketcher.Constraint("Symmetric", 12, 3, 15, 3, -2))
sketch7.addConstraint(Sketcher.Constraint("PointOnObject", 0, 3, -2))
sketch7.addConstraint(Sketcher.Constraint("PointOnObject", 3, 3, -1))
sketch7.addConstraint(Sketcher.Constraint("PointOnObject", 14, 3, -1))
sketch7.addConstraint(Sketcher.Constraint("Horizontal", 10, 3, 12, 3))
sketch7.addConstraint(Sketcher.Constraint("Diameter", 0, Q("1 mm")))
sketch7.addConstraint(Sketcher.Constraint("DistanceY", -1, 1, 0, 3, Q("8 mm")))
sketch7.addConstraint(Sketcher.Constraint("DistanceX", -1, 1, 3, 3, Q("8 mm")))
sketch7.addConstraint(Sketcher.Constraint("DistanceX", 2, 3, 1, 3, Q("5 mm")))
sketch7.addConstraint(Sketcher.Constraint("DistanceY", 4, 3, 5, 3, Q("5 mm")))
sketch7.addConstraint(Sketcher.Constraint("DistanceX", -1, 1, 14, 3, Q("10.5 mm")))
sketch7.addConstraint(Sketcher.Constraint("DistanceX", 5, 3, 12, 3, Q("2.5 mm")))
sketch7.addConstraint(Sketcher.Constraint("DistanceY", -1, 1, 1, 3, Q("7.599342 mm")))
sketch7.addConstraint(Sketcher.Constraint("DistanceX", -1, 1, 4, 3, Q("7.599342 mm")))
pocket5 = doc.addObject("PartDesign::Pocket", "Pocket004")
body.addObject(pocket5)
pocket5.Profile = sketch7
pocket5.Type = "ThroughAll"

doc.recompute()
